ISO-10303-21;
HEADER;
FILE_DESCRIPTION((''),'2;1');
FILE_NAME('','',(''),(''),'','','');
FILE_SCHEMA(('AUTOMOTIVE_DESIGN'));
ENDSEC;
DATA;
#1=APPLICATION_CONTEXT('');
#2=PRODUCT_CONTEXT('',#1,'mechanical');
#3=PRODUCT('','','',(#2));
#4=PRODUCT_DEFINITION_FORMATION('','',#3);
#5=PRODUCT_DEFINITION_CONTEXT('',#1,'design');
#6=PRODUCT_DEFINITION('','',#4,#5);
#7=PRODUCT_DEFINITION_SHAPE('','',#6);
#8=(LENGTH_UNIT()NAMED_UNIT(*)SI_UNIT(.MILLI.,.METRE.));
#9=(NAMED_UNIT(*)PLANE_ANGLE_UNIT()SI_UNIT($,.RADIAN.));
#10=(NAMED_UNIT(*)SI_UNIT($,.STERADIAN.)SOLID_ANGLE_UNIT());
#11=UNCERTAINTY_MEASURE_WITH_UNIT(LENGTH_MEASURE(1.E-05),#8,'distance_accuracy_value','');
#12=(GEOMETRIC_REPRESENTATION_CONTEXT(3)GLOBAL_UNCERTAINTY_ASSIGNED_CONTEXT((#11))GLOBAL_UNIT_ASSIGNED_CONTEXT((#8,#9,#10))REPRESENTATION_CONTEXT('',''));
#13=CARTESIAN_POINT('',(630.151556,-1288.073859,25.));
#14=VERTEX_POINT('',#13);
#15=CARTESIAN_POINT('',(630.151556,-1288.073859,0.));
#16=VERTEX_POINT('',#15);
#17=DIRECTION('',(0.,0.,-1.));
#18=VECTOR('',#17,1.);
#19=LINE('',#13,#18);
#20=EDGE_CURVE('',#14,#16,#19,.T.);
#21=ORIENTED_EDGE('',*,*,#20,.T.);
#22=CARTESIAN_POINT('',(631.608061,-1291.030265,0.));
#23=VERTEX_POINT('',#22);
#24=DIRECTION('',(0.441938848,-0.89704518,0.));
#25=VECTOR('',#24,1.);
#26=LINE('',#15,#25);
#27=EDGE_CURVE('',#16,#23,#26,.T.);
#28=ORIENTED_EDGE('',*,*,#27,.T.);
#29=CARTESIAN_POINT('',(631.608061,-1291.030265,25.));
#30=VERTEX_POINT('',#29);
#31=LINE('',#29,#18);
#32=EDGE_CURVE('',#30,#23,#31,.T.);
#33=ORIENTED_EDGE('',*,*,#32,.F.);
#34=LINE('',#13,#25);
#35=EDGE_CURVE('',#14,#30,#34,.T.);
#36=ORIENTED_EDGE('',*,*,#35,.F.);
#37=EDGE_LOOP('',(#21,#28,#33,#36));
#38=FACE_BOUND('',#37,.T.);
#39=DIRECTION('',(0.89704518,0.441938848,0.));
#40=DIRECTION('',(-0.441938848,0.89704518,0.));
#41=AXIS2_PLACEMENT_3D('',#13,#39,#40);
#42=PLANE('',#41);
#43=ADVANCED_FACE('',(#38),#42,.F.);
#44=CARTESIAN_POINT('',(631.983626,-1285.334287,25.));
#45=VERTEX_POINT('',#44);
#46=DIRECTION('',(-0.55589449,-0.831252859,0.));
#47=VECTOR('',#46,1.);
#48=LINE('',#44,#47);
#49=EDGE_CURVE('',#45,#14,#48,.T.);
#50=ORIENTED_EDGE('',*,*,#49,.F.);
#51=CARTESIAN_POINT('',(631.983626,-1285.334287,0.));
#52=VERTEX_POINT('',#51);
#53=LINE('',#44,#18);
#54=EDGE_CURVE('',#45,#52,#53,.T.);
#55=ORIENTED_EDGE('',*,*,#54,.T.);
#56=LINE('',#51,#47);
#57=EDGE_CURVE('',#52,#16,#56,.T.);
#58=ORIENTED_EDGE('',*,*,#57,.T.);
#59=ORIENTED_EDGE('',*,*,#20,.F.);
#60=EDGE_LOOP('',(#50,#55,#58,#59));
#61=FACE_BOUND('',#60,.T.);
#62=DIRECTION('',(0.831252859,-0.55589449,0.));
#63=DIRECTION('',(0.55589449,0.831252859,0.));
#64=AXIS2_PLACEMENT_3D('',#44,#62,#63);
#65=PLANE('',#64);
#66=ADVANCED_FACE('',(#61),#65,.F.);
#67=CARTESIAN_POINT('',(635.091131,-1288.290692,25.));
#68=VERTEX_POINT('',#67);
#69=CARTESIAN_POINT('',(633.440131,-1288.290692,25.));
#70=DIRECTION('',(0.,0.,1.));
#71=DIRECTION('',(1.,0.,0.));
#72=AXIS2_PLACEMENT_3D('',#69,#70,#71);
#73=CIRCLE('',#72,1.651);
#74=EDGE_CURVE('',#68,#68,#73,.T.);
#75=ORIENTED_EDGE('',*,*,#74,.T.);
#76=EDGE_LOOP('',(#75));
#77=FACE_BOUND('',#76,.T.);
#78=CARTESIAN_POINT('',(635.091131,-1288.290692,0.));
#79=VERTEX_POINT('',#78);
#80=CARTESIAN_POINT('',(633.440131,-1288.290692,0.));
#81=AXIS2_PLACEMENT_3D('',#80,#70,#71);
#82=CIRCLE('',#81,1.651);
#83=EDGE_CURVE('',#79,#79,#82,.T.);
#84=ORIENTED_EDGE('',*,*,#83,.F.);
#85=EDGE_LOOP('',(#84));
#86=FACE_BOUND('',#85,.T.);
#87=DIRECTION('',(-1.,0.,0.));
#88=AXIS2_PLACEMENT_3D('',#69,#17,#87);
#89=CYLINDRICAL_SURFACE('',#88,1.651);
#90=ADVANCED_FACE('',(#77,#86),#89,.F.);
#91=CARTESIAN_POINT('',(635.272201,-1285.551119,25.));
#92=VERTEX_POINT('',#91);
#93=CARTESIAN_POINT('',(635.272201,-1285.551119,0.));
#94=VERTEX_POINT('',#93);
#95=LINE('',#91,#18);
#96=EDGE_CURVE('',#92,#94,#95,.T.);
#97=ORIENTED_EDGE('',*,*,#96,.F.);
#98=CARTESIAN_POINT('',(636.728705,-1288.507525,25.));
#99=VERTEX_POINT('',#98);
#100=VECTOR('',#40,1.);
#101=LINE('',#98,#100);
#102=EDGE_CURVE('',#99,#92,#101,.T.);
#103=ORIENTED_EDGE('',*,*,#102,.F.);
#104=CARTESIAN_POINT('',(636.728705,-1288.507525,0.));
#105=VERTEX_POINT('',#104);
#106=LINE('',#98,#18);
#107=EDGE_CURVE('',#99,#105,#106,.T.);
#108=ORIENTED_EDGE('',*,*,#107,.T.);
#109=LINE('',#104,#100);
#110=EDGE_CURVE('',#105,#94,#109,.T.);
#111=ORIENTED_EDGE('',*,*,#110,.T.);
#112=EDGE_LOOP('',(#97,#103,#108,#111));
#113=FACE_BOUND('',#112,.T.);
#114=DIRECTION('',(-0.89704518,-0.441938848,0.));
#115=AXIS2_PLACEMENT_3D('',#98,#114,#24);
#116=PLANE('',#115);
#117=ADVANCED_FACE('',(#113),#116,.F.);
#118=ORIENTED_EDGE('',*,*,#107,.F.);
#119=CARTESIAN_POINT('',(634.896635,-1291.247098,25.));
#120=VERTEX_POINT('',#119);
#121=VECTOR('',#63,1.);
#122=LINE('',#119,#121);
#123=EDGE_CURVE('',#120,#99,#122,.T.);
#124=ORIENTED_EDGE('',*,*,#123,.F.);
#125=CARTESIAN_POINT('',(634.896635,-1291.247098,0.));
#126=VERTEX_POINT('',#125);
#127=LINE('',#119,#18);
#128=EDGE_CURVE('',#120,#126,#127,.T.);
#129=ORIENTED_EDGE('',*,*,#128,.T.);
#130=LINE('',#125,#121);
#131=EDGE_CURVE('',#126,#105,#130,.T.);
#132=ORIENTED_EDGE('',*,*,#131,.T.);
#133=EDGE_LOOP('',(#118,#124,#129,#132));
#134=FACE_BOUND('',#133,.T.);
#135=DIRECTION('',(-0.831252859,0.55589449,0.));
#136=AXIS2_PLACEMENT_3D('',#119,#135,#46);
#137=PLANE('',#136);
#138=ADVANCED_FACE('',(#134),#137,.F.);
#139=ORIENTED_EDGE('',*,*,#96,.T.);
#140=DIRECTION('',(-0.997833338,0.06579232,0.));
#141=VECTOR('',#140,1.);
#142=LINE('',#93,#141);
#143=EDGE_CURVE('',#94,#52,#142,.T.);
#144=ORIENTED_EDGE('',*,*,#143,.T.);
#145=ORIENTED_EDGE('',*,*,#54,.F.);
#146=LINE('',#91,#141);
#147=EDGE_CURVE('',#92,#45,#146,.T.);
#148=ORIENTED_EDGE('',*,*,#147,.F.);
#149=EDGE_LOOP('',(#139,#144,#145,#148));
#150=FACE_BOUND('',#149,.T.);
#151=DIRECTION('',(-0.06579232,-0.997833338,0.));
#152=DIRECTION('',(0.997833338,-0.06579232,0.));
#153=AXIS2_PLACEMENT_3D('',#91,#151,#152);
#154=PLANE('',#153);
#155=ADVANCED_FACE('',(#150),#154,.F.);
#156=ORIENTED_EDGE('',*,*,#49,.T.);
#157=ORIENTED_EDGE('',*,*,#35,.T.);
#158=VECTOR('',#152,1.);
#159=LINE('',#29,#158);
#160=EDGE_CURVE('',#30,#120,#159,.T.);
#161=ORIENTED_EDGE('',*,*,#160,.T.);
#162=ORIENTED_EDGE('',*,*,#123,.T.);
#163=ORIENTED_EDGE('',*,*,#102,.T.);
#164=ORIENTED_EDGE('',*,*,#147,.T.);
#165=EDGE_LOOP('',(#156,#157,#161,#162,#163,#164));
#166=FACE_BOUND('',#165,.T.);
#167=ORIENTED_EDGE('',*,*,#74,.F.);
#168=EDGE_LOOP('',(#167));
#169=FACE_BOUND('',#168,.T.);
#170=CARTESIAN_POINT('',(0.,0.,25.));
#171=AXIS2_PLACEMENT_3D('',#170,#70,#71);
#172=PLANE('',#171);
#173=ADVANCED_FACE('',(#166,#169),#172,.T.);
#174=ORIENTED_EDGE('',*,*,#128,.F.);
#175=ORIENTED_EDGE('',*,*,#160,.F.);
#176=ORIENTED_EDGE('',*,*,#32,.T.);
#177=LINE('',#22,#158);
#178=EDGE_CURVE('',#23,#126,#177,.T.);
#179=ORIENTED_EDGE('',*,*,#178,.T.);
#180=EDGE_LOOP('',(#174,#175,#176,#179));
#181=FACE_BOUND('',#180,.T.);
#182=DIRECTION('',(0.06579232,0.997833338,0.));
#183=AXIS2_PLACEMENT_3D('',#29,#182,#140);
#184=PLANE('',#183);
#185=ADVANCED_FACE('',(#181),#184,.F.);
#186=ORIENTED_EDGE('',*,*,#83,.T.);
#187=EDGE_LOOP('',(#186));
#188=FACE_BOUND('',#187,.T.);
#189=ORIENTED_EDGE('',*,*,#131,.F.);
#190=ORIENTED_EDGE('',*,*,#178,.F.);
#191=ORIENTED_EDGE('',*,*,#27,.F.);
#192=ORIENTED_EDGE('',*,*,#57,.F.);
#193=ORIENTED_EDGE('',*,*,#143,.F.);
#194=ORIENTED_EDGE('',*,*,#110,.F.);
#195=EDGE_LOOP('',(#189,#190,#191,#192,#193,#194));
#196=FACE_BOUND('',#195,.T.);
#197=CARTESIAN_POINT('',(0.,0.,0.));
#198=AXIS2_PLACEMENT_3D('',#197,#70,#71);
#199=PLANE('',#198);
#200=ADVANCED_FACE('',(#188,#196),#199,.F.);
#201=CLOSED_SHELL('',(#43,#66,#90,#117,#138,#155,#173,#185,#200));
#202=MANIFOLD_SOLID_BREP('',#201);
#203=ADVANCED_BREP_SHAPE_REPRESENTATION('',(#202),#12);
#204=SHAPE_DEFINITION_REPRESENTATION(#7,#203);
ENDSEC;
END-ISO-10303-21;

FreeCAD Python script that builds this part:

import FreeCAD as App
import Part
import Sketcher
from FreeCAD import Vector
Q = App.Units.Quantity

doc = App.newDocument("Part")
body = doc.addObject("PartDesign::Body", "Body")

# Sketch on XY plane
sketch1 = body.newObject("Sketcher::SketchObject", "Sketch")
sketch1.AttachmentSupport = (doc.getObject("XY_Plane"), [""])
sketch1.MapMode = "FlatFace"
sketch1.addGeometry(Part.LineSegment(Vector(631.983626, -1285.334287, 0), Vector(630.151556, -1288.073859, 0)), False)
sketch1.addGeometry(Part.LineSegment(Vector(630.151556, -1288.073859, 0), Vector(631.608061, -1291.030265, 0)), False)
sketch1.addGeometry(Part.LineSegment(Vector(631.608061, -1291.030265, 0), Vector(634.896635, -1291.247098, 0)), False)
sketch1.addGeometry(Part.LineSegment(Vector(634.896635, -1291.247098, 0), Vector(636.728705, -1288.507525, 0)), False)
sketch1.addGeometry(Part.LineSegment(Vector(636.728705, -1288.507525, 0), Vector(635.272201, -1285.551119, 0)), False)
sketch1.addGeometry(Part.LineSegment(Vector(635.272201, -1285.551119, 0), Vector(631.983626, -1285.334287, 0)), False)
sketch1.addGeometry(Part.Circle(Vector(633.440131, -1288.290692, 0), Vector(0, 0, 1), 1.651), False)
sketch1.addConstraint(Sketcher.Constraint("Coincident", 0, 2, 1, 1))
sketch1.addConstraint(Sketcher.Constraint("Coincident", 1, 2, 2, 1))
sketch1.addConstraint(Sketcher.Constraint("Coincident", 2, 2, 3, 1))
sketch1.addConstraint(Sketcher.Constraint("Coincident", 3, 2, 4, 1))
sketch1.addConstraint(Sketcher.Constraint("Coincident", 4, 2, 5, 1))
sketch1.addConstraint(Sketcher.Constraint("Coincident", 5, 2, 0, 1))
sketch1.addConstraint(Sketcher.Constraint("Parallel", 0, 3))
sketch1.addConstraint(Sketcher.Constraint("Parallel", 1, 4))
sketch1.addConstraint(Sketcher.Constraint("Parallel", 2, 5))
sketch1.addConstraint(Sketcher.Constraint("Equal", 0, 1))
sketch1.addConstraint(Sketcher.Constraint("Equal", 1, 2))
sketch1.addConstraint(Sketcher.Constraint("Equal", 2, 3))
sketch1.addConstraint(Sketcher.Constraint("Diameter", 6, Q("3.302 mm")))
sketch1.addConstraint(Sketcher.Constraint("DistanceX", -1, 1, 4, 2, Q("635.272201 mm")))
sketch1.addConstraint(Sketcher.Constraint("DistanceX", -1, 1, 6, 3, Q("633.440131 mm")))
sketch1.addConstraint(Sketcher.Constraint("DistanceY", 0, 2, -1, 1, Q("1288.073859 mm")))
sketch1.addConstraint(Sketcher.Constraint("DistanceX", -1, 1, 1, 2, Q("631.608061 mm")))
sketch1.addConstraint(Sketcher.Constraint("DistanceY", 4, 2, -1, 1, Q("1285.551119 mm")))
sketch1.addConstraint(Sketcher.Constraint("DistanceX", 0, 2, 2, 2, Q("4.745079 mm")))
sketch1.addConstraint(Sketcher.Constraint("DistanceY", 2, 2, 0, 2, Q("3.173238 mm")))
sketch1.addConstraint(Sketcher.Constraint("DistanceY", 6, 3, -1, 1, Q("1288.290692 mm")))
pad1 = body.newObject("PartDesign::Pad", "Pad")
pad1.Profile = sketch1
pad1.Length = 25

doc.recompute()
